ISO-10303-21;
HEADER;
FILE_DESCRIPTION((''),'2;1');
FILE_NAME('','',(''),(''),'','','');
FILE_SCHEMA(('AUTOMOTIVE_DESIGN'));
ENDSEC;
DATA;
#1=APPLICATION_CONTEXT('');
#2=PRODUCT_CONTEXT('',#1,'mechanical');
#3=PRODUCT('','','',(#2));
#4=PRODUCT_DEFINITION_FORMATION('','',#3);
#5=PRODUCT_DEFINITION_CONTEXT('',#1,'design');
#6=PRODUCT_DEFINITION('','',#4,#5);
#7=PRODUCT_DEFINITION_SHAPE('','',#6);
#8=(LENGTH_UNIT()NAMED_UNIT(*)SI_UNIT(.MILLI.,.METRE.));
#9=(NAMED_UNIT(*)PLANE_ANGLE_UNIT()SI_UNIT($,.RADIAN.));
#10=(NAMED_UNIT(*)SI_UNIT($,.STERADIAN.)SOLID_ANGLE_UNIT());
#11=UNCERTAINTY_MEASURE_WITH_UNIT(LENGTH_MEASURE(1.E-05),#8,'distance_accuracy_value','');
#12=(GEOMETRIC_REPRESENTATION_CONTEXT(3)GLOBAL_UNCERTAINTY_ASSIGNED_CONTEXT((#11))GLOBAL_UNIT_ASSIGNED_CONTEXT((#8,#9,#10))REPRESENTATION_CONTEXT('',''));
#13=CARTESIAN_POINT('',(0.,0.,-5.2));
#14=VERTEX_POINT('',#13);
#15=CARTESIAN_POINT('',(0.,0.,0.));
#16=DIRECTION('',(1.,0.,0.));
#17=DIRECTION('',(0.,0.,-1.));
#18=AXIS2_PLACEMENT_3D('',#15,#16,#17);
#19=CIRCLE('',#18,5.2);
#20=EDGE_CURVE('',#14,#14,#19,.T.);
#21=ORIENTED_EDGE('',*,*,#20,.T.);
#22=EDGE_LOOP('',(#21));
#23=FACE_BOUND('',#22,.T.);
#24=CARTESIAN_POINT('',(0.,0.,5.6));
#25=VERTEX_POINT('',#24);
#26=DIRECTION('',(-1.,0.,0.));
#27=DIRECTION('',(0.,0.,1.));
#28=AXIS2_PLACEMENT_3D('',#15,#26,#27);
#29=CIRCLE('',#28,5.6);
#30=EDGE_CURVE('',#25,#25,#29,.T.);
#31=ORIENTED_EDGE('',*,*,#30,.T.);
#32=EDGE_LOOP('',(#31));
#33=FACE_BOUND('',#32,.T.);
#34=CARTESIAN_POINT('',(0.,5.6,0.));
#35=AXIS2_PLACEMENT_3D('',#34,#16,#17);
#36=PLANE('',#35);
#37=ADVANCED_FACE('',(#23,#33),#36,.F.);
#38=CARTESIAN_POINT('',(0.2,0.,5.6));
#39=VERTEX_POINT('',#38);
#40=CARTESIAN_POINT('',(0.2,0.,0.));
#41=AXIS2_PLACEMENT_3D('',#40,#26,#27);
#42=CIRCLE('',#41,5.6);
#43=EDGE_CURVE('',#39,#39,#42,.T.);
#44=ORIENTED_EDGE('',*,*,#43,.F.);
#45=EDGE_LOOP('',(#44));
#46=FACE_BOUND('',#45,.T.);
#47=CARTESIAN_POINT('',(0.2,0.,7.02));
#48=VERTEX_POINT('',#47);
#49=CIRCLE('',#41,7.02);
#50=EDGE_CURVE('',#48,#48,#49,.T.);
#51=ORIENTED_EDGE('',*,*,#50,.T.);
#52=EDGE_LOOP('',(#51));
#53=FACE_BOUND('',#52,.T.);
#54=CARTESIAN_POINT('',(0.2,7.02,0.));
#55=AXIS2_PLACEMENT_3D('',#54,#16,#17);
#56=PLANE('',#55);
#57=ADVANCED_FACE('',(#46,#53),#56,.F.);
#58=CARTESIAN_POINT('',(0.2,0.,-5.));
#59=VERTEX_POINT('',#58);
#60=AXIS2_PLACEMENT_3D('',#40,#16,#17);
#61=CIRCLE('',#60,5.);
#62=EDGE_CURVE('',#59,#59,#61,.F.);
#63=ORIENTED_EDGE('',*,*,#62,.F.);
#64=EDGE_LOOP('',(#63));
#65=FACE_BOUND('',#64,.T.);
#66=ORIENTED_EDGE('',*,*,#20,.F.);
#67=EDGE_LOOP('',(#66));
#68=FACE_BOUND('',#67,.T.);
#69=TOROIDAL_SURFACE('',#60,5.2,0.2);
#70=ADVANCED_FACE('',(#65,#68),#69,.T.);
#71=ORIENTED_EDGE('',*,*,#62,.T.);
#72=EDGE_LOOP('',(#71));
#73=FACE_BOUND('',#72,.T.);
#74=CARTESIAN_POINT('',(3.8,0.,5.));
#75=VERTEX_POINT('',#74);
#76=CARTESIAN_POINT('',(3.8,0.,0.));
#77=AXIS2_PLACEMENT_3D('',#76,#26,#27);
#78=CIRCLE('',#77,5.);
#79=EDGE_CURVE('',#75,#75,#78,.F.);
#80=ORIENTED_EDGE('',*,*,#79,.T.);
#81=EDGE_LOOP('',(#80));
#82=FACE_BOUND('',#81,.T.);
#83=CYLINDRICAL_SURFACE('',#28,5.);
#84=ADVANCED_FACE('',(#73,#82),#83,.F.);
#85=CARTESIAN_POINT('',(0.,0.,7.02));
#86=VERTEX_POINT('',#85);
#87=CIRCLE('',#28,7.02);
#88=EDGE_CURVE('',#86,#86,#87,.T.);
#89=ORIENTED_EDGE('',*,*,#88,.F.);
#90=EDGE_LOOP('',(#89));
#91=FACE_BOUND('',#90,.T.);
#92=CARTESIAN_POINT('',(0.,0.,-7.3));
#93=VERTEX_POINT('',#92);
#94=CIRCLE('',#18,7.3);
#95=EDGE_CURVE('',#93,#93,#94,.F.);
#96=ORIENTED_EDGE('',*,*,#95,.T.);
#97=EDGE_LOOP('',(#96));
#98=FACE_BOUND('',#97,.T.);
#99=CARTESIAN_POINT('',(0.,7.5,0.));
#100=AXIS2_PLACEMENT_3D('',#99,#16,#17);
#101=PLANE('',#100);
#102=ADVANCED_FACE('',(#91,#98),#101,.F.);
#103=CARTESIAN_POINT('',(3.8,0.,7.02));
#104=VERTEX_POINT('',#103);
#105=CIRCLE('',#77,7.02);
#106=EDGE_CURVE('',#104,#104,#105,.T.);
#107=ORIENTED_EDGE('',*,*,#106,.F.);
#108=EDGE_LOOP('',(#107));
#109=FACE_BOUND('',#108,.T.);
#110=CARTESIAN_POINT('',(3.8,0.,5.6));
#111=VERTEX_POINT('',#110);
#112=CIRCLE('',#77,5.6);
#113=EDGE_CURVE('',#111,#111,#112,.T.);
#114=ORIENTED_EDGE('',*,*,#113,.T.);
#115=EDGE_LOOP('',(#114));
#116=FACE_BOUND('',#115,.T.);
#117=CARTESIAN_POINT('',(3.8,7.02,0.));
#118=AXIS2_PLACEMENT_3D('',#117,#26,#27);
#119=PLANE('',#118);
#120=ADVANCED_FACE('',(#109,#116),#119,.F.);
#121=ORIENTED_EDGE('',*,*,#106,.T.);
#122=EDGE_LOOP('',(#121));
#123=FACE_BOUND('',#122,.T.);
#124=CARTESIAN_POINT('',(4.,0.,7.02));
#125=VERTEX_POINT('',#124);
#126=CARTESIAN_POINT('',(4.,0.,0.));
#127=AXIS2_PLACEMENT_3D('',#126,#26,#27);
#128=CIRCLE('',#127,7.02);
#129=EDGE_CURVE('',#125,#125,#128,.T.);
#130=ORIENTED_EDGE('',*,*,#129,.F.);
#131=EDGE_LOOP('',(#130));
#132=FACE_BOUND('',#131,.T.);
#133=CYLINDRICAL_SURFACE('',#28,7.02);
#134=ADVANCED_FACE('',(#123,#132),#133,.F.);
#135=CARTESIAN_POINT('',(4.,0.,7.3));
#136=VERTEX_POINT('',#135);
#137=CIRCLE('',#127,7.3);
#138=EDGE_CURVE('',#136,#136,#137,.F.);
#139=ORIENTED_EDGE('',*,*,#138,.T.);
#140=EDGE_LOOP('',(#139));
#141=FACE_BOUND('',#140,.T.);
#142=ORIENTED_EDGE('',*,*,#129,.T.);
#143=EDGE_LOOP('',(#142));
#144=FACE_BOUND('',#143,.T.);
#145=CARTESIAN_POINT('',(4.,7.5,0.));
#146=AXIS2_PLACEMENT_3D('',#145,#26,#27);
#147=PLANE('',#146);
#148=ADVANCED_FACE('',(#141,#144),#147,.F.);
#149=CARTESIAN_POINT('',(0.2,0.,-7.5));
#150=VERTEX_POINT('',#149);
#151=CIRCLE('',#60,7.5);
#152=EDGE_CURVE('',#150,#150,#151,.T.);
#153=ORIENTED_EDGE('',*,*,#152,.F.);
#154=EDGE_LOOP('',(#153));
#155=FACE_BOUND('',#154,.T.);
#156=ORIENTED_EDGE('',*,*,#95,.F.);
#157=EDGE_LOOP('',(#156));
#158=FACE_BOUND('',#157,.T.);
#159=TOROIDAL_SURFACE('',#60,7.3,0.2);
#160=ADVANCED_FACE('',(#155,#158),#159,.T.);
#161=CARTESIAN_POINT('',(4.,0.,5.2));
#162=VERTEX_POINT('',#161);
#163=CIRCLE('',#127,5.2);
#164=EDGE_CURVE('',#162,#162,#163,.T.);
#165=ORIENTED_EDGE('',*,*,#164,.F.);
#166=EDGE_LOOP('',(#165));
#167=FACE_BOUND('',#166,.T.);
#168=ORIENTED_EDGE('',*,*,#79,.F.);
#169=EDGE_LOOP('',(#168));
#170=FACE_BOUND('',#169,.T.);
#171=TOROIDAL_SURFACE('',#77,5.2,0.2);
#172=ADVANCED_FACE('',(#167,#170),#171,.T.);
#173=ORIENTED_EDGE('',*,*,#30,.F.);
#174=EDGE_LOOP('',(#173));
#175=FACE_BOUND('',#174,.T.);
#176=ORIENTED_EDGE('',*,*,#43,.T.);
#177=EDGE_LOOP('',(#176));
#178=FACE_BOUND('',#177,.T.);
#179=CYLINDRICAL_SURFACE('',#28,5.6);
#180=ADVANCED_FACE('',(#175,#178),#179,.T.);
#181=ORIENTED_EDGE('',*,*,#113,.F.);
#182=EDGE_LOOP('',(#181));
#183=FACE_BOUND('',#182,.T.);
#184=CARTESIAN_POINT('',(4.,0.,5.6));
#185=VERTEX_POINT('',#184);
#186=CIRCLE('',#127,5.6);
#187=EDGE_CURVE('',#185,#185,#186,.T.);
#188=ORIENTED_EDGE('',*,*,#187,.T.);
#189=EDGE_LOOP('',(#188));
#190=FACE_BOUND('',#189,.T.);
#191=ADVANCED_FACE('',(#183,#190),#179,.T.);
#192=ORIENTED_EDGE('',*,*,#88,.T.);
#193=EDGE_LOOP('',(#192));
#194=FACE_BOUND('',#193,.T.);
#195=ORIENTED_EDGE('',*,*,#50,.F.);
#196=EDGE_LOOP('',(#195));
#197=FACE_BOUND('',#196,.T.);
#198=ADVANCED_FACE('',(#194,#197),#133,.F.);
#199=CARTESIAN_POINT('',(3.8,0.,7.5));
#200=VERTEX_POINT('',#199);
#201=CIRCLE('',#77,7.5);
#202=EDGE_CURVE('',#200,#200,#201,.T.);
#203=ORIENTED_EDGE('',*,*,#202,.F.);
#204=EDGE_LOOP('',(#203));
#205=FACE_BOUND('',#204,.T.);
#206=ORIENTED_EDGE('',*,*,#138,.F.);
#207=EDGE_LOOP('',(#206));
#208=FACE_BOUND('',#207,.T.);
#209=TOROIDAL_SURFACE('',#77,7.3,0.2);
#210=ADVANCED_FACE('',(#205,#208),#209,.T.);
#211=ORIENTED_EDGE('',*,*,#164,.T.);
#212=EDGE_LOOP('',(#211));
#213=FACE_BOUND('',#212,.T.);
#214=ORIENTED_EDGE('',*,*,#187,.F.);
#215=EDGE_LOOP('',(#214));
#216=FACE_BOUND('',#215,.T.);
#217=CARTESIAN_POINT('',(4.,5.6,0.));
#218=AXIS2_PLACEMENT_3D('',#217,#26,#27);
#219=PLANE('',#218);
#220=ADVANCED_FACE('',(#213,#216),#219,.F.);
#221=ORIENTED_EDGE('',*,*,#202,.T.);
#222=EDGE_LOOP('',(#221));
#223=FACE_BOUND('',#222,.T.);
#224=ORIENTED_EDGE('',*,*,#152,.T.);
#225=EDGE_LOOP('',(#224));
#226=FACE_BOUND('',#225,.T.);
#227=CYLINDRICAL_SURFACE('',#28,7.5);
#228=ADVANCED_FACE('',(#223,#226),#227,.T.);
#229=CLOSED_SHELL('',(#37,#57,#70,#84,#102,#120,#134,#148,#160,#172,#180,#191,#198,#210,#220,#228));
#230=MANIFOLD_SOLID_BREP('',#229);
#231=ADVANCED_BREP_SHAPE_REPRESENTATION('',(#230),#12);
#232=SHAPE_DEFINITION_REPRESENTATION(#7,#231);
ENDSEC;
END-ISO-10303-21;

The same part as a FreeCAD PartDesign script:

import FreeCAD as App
import Part
import Sketcher
Q = App.Units.Quantity


def edges_at(feature, points):
    """Names of the edges that pass closest to the given points."""
    edges = feature.Shape.Edges
    near = lambda p: min(range(len(edges)), key=lambda i: edges[i].distToShape(Part.Vertex(*p))[0])
    return sorted({f"Edge{near(p) + 1}" for p in points})


def add_polygon(sketch, points):
    """Adds a closed chain of lines whose ends are joined by coincident constraints."""
    first, n = sketch.GeometryCount, len(points)
    for a, b in zip(points, points[1:] + points[:1]):
        sketch.addGeometry(Part.LineSegment(App.Vector(*a, 0), App.Vector(*b, 0)), False)
    for i in range(n):
        sketch.addConstraint(Sketcher.Constraint("Coincident", first + i, 2, first + (i + 1) % n, 1))

doc = App.newDocument("Part")
params = doc.addObject("Spreadsheet::Sheet", "Params")
for row, (alias, value) in enumerate([
    ("sketch1_width", "4 mm"),
    ("sketch1_width2", "0.2 mm"),
    ("sketch1_height", "0.6 mm"),
    ("sketch1_height2", "1.42 mm"),
    ("sketch1_height3", "0.48 mm"),
    ("revolution_angle", "360 deg"),
    ("fillet_radius", "0.2 mm"),
    ("fillet2_radius", "0.2 mm"),
], start=1):
    params.set(f"A{row}", alias)
    params.set(f"B{row}", "=" + value)
    params.setAlias(f"B{row}", alias)

body = doc.addObject("PartDesign::Body", "Body")

sketch1 = doc.addObject("Sketcher::SketchObject", "Sketch")
body.addObject(sketch1)
sketch1.AttachmentSupport = (doc.XY_Plane, [""])
sketch1.MapMode = "FlatFace"
add_polygon(sketch1, [(0, 5), (4, 5), (4, 5.6), (3.8, 5.6), (3.8, 7.02), (4, 7.02), (4, 7.5), (0, 7.5), (0, 7.02), (0.2, 7.02), (0.2, 5.6), (0, 5.6)])
sketch1.addConstraint([
    Sketcher.Constraint("Horizontal", 0),
    Sketcher.Constraint("Vertical", 1),
    Sketcher.Constraint("Horizontal", 2),
    Sketcher.Constraint("Vertical", 3),
    Sketcher.Constraint("Horizontal", 4),
    Sketcher.Constraint("Vertical", 5),
    Sketcher.Constraint("Horizontal", 6),
    Sketcher.Constraint("Vertical", 7),
    Sketcher.Constraint("Horizontal", 8),
    Sketcher.Constraint("Vertical", 9),
    Sketcher.Constraint("Horizontal", 10),
    Sketcher.Constraint("Vertical", 11),
    Sketcher.Constraint("PointOnObject", 6, 2, -2),
    Sketcher.Constraint("PointOnObject", 10, 2, -2),
    Sketcher.Constraint("Horizontal", 4, 2, 7, 2),
    Sketcher.Constraint("Horizontal", 2, 2, 9, 2),
    Sketcher.Constraint("Vertical", 1, 2, 4, 2),
    Sketcher.Constraint("Equal", 4, 8),
    Sketcher.Constraint("DistanceX", 0, 1, 0, 2, Q("4 mm")),
    Sketcher.Constraint("DistanceX", 2, 2, 2, 1, Q("0.2 mm")),
    Sketcher.Constraint("DistanceY", 1, 1, 1, 2, Q("0.6 mm")),
    Sketcher.Constraint("DistanceY", -1, 1, 0, 2, Q("5 mm")),
    Sketcher.Constraint("DistanceY", 3, 1, 3, 2, Q("1.42 mm")),
    Sketcher.Constraint("DistanceY", 5, 1, 5, 2, Q("0.48 mm")),
])
sketch1.setExpression("Constraints[30]", "Params.sketch1_width")
sketch1.setExpression("Constraints[31]", "Params.sketch1_width2")
sketch1.setExpression("Constraints[32]", "Params.sketch1_height")
sketch1.setExpression("Constraints[34]", "Params.sketch1_height2")
sketch1.setExpression("Constraints[35]", "Params.sketch1_height3")
revolution = doc.addObject("PartDesign::Revolution", "Revolution")
body.addObject(revolution)
revolution.Profile = sketch1
revolution.ReferenceAxis = (sketch1, ["H_Axis"])
revolution.setExpression("Angle", "Params.revolution_angle")
doc.recompute()

fillet = doc.addObject("PartDesign::Fillet", "Fillet")
body.addObject(fillet)
fillet.Base = (revolution, edges_at(revolution, [(0, 0, -7.5), (4, 0, -7.5)]))
fillet.setExpression("Radius", "Params.fillet_radius")
doc.recompute()

fillet2 = doc.addObject("PartDesign::Fillet", "Fillet001")
body.addObject(fillet2)
fillet2.Base = (fillet, edges_at(fillet, [(4, 0, -5), (0, 0, -5)]))
fillet2.setExpression("Radius", "Params.fillet2_radius")

doc.recompute()
